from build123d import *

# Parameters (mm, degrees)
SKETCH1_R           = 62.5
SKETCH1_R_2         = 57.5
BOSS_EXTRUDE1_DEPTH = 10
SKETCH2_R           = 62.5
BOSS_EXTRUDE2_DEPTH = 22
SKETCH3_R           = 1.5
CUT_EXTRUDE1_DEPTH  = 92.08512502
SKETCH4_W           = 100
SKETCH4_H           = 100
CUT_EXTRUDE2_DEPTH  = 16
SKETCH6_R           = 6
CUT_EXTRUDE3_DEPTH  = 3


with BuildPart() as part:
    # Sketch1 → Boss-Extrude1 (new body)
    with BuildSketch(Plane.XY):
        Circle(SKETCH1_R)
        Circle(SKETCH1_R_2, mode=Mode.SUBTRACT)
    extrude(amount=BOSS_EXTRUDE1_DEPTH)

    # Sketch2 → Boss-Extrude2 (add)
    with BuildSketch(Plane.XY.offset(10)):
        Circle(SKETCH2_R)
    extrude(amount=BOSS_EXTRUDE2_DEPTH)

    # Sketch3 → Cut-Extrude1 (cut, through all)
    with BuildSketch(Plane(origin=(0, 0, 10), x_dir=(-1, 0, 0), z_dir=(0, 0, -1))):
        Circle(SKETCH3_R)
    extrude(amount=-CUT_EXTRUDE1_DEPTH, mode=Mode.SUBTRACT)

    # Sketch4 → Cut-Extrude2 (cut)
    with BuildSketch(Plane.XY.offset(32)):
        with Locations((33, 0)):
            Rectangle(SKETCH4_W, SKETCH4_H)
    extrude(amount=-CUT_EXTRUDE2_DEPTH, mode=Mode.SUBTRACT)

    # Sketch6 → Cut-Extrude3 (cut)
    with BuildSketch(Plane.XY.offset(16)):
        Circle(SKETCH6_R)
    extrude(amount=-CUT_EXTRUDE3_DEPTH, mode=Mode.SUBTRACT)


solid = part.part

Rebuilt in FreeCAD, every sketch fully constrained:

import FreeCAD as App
import Part
import Sketcher
from FreeCAD import Vector
Q = App.Units.Quantity


def add_polygon(sketch, points):
    """Adds a closed chain of lines whose ends are joined by coincident constraints."""
    first, n = sketch.GeometryCount, len(points)
    for a, b in zip(points, points[1:] + points[:1]):
        sketch.addGeometry(Part.LineSegment(App.Vector(*a, 0), App.Vector(*b, 0)), False)
    for i in range(n):
        sketch.addConstraint(Sketcher.Constraint("Coincident", first + i, 2, first + (i + 1) % n, 1))

doc = App.newDocument("Part")
body = doc.addObject("PartDesign::Body", "Body")

sketch1 = body.newObject("Sketcher::SketchObject", "Sketch")
sketch1.AttachmentSupport = (doc.getObject("XY_Plane"), [""])
sketch1.MapMode = "FlatFace"
sketch1.addGeometry([
    Part.Circle(Vector(0, 0, 0), Vector(0, 0, 1), 62),
    Part.Circle(Vector(0, 0, 0), Vector(0, 0, 1), 58),
], False)
sketch1.addConstraint([
    Sketcher.Constraint("Coincident", 0, 3, -1, 1),
    Sketcher.Constraint("Coincident", 1, 3, -1, 1),
    Sketcher.Constraint("Diameter", 0, Q("125 mm")),
    Sketcher.Constraint("Diameter", 1, Q("115 mm")),
])
pad1 = body.newObject("PartDesign::Pad", "Pad")
pad1.Profile = sketch1
pad1.Length = 10

sketch2 = body.newObject("Sketcher::SketchObject", "Sketch001")
sketch2.AttachmentSupport = (doc.getObject("XY_Plane"), [""])
sketch2.MapMode = "FlatFace"
sketch2.AttachmentOffset = App.Placement(Vector(0, 0, 10), App.Rotation())
sketch2.addGeometry(Part.Circle(Vector(0, 0, 0), Vector(0, 0, 1), 62), False)
sketch2.addConstraint([
    Sketcher.Constraint("Coincident", 0, 3, -1, 1),
    Sketcher.Constraint("Diameter", 0, Q("125 mm")),
])
pad2 = body.newObject("PartDesign::Pad", "Pad001")
pad2.Profile = sketch2
pad2.Length = 22

sketch3 = body.newObject("Sketcher::SketchObject", "Sketch002")
sketch3.AttachmentSupport = (doc.getObject("XY_Plane"), [""])
sketch3.MapMode = "FlatFace"
sketch3.AttachmentOffset = App.Placement(Vector(0, 0, 10), App.Rotation())
sketch3.addGeometry(Part.Circle(Vector(0, 0, 0), Vector(0, 0, 1), 1.5), False)
sketch3.addConstraint([
    Sketcher.Constraint("Coincident", 0, 3, -1, 1),
    Sketcher.Constraint("Diameter", 0, Q("3 mm")),
])
pocket1 = body.newObject("PartDesign::Pocket", "Pocket")
pocket1.Profile = sketch3
pocket1.Type = "ThroughAll"
pocket1.Reversed = True

sketch4 = body.newObject("Sketcher::SketchObject", "Sketch003")
sketch4.AttachmentSupport = (doc.getObject("XY_Plane"), [""])
sketch4.MapMode = "FlatFace"
sketch4.AttachmentOffset = App.Placement(Vector(0, 0, 32), App.Rotation())
add_polygon(sketch4, [(-17, 50), (-17, -50), (83, -50), (83, 50)])
sketch4.addConstraint([
    Sketcher.Constraint("Vertical", 0),
    Sketcher.Constraint("Horizontal", 1),
    Sketcher.Constraint("Vertical", 2),
    Sketcher.Constraint("Horizontal", 3),
    Sketcher.Constraint("Equal", 3, 0),
    Sketcher.Constraint("DistanceX", 1, 1, 1, 2, Q("100 mm")),
    Sketcher.Constraint("DistanceX", 0, 2, -1, 1, Q("17 mm")),
    Sketcher.Constraint("DistanceY", 0, 2, -1, 1, Q("50 mm")),
])
pocket2 = body.newObject("PartDesign::Pocket", "Pocket001")
pocket2.Profile = sketch4
pocket2.Length = 16

sketch5 = body.newObject("Sketcher::SketchObject", "Sketch004")
sketch5.AttachmentSupport = (doc.getObject("XY_Plane"), [""])
sketch5.MapMode = "FlatFace"
sketch5.AttachmentOffset = App.Placement(Vector(0, 0, 16), App.Rotation())
sketch5.addGeometry(Part.Circle(Vector(0, 0, 0), Vector(0, 0, 1), 6), False)
sketch5.addConstraint([
    Sketcher.Constraint("Coincident", 0, 3, -1, 1),
    Sketcher.Constraint("Diameter", 0, Q("12 mm")),
])
pocket3 = body.newObject("PartDesign::Pocket", "Pocket002")
pocket3.Profile = sketch5
pocket3.Length = 3

doc.recompute()
